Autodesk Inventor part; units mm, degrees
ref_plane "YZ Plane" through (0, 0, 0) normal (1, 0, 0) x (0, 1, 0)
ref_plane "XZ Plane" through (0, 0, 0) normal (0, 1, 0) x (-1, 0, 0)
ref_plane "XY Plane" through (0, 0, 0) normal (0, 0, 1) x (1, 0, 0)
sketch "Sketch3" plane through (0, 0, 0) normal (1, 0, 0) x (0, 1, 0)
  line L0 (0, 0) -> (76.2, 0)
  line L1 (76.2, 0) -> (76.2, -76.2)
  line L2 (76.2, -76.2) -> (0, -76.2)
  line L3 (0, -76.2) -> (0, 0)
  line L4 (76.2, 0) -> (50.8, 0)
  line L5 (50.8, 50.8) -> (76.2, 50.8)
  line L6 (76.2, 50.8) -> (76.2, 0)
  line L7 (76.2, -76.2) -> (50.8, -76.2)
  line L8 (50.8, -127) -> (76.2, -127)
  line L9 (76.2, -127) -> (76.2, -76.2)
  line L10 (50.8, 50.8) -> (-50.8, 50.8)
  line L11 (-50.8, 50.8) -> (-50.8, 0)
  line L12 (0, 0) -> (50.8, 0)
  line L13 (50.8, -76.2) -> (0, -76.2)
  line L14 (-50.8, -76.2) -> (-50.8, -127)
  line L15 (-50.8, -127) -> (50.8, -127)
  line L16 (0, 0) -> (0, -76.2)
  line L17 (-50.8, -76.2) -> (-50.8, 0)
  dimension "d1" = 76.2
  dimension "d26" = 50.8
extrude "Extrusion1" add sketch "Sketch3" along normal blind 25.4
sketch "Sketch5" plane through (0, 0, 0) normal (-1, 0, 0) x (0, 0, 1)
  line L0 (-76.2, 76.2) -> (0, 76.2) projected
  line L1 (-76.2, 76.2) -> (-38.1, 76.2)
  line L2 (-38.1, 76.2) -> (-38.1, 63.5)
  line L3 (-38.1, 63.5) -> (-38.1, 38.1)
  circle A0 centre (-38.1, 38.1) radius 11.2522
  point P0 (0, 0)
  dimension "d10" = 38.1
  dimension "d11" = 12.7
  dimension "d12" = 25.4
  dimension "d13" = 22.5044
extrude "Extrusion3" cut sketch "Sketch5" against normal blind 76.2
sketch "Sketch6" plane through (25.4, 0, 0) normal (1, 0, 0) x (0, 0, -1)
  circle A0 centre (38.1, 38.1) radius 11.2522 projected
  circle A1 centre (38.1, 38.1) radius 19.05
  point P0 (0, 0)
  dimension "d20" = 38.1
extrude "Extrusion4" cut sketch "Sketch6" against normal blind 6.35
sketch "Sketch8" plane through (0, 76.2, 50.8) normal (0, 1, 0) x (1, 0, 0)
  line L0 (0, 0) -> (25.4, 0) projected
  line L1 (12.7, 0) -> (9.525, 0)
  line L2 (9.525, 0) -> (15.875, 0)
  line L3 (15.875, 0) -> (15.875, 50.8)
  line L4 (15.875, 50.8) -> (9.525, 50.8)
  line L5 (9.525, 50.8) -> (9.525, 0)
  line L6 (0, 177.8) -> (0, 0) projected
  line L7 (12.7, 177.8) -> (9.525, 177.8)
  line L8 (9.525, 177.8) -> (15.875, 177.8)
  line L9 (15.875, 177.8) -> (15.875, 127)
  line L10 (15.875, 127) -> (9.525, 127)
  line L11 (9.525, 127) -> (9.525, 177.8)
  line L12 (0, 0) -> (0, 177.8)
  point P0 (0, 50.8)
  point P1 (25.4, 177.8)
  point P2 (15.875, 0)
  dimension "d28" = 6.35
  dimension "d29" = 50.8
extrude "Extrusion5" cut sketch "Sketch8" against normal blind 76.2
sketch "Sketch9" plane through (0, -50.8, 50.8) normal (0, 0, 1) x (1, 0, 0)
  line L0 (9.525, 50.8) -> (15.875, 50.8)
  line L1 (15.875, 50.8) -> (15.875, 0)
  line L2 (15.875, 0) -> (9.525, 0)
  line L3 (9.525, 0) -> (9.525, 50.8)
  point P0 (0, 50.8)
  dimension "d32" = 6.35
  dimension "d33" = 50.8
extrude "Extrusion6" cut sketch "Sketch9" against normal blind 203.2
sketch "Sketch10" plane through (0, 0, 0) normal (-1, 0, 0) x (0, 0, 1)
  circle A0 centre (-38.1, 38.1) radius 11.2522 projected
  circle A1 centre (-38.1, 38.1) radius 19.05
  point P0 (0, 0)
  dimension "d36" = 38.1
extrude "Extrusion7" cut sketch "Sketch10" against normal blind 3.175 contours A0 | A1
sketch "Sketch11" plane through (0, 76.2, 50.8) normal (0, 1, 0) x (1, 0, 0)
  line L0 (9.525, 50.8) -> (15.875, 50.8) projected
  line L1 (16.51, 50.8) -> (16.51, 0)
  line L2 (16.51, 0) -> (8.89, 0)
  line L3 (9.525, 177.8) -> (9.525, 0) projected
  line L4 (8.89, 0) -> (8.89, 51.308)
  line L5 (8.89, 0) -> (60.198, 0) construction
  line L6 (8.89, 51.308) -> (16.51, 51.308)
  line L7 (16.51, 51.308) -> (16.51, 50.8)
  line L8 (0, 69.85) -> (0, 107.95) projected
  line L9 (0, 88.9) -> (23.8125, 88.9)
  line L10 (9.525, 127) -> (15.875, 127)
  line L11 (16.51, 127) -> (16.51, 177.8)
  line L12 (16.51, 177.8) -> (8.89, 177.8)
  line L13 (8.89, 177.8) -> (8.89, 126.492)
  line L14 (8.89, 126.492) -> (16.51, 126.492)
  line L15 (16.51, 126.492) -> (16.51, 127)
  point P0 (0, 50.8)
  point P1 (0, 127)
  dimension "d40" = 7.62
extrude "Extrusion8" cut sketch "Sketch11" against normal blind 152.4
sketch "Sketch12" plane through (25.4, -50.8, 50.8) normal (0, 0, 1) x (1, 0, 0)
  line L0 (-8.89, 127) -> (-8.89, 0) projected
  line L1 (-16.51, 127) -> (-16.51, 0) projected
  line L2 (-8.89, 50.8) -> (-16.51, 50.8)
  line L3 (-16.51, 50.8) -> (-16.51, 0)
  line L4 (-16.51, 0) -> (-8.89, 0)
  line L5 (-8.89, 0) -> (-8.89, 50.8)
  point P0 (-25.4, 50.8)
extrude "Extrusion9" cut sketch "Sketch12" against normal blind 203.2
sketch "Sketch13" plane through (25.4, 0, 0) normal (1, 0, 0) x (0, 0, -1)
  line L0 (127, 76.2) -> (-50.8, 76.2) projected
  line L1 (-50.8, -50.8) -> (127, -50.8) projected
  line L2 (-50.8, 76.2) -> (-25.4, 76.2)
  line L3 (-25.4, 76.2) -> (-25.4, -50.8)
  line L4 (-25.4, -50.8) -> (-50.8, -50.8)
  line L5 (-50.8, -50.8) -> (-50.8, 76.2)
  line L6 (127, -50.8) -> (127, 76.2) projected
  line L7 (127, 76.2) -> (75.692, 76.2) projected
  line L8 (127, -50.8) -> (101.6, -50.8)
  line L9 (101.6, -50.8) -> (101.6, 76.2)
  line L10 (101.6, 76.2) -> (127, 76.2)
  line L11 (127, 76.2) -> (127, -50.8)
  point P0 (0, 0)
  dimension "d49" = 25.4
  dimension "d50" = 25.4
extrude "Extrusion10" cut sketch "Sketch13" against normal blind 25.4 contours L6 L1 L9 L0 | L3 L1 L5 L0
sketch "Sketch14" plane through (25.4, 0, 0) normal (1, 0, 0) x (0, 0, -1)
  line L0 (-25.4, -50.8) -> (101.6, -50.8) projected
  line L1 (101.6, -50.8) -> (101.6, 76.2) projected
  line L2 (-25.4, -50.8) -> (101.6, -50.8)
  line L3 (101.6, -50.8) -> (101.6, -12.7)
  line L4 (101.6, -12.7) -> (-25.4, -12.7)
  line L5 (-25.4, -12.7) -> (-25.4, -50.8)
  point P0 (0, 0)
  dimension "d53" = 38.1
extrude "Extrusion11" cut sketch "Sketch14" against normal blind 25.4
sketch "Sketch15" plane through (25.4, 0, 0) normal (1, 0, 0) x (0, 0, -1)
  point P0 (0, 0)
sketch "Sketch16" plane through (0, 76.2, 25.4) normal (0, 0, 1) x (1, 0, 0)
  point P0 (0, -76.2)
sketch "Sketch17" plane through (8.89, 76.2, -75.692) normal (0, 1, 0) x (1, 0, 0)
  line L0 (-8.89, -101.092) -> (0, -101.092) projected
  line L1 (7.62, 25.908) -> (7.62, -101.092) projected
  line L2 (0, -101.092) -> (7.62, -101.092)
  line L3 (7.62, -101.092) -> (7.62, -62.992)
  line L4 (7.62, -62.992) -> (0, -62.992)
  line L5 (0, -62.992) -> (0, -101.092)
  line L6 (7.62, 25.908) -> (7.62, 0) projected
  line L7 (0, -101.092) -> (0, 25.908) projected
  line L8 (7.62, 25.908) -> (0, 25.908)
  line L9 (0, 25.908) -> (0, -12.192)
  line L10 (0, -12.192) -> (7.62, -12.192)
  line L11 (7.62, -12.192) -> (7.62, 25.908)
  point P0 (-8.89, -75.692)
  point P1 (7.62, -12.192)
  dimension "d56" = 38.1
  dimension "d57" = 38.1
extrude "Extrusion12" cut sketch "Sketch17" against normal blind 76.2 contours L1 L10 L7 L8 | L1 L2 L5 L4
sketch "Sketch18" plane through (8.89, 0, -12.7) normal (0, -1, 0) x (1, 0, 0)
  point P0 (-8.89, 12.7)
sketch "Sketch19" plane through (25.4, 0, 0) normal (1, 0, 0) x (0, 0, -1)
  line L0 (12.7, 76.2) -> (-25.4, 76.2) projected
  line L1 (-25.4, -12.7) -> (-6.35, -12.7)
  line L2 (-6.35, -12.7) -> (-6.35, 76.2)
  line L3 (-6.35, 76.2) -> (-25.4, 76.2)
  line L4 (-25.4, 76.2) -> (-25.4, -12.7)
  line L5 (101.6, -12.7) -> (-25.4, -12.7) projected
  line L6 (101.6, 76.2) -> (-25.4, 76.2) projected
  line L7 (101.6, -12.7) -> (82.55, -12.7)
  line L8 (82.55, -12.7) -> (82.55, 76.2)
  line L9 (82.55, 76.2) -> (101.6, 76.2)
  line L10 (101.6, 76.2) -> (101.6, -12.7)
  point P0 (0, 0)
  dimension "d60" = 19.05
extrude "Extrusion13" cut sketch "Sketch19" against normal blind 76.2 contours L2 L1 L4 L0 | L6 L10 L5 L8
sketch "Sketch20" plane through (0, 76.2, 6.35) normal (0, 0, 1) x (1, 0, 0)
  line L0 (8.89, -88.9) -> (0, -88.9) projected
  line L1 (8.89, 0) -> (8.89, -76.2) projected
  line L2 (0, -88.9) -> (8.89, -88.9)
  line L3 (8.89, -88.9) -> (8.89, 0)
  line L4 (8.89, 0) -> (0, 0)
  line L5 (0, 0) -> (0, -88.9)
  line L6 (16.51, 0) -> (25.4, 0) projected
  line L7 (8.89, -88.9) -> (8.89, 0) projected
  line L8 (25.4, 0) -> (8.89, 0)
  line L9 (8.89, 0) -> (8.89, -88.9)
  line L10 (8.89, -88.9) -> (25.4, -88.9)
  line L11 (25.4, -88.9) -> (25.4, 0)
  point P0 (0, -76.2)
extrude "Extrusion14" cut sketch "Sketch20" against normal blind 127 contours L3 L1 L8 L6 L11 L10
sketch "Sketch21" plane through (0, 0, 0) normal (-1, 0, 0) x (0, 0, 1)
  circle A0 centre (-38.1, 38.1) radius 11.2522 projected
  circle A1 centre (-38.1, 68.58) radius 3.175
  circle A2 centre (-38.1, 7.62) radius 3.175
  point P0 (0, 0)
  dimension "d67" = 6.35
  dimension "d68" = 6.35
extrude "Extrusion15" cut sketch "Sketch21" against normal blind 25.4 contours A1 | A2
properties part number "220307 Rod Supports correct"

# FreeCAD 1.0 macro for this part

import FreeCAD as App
import Part
import Sketcher

V = App.Vector
Q = App.Units.Quantity

doc = App.newDocument("Part")
body = doc.addObject("PartDesign::Body", "Body")

# Sketch on YZ plane
sketch1 = body.newObject("Sketcher::SketchObject", "Sketch")
sketch1.AttachmentSupport = (doc.getObject("YZ_Plane"), [""])
sketch1.MapMode = "FlatFace"
sketch1.addGeometry(Part.LineSegment(V(76.2, -127, 0), V(76.2, 50.8, 0)), False)
sketch1.addGeometry(Part.LineSegment(V(76.2, 50.8, 0), V(-50.8, 50.8, 0)), False)
sketch1.addGeometry(Part.LineSegment(V(-50.8, 50.8, 0), V(-50.8, -127, 0)), False)
sketch1.addGeometry(Part.LineSegment(V(-50.8, -127, 0), V(76.2, -127, 0)), False)
sketch1.addConstraint(Sketcher.Constraint("Coincident", 0, 2, 1, 1))
sketch1.addConstraint(Sketcher.Constraint("Coincident", 1, 2, 2, 1))
sketch1.addConstraint(Sketcher.Constraint("Coincident", 2, 2, 3, 1))
sketch1.addConstraint(Sketcher.Constraint("Coincident", 3, 2, 0, 1))
sketch1.addConstraint(Sketcher.Constraint("Vertical", 0))
sketch1.addConstraint(Sketcher.Constraint("Horizontal", 1))
sketch1.addConstraint(Sketcher.Constraint("Vertical", 2))
sketch1.addConstraint(Sketcher.Constraint("Horizontal", 3))
sketch1.addConstraint(Sketcher.Constraint("DistanceX", -1, 1, 0, 2, Q("3 in")))
sketch1.addConstraint(Sketcher.Constraint("DistanceY", -1, 1, 0, 2, Q("2 in")))
sketch1.addConstraint(Sketcher.Constraint("DistanceX", 1, 2, -1, 1, Q("2 in")))
sketch1.addConstraint(Sketcher.Constraint("DistanceY", 0, 1, 0, 2, Q("7 in")))
pad1 = body.newObject("PartDesign::Pad", "Pad")
pad1.Profile = sketch1
pad1.Length = Q("1 in")

# Sketch on YZ plane
sketch2 = body.newObject("Sketcher::SketchObject", "Sketch001")
sketch2.AttachmentSupport = (doc.getObject("YZ_Plane"), [""])
sketch2.MapMode = "FlatFace"
sketch2.addGeometry(Part.Circle(V(38.1, -38.1, 0), V(0, 0, 1), 11.2522), False)
sketch2.addConstraint(Sketcher.Constraint("Diameter", 0, Q("0.886 in")))
sketch2.addConstraint(Sketcher.Constraint("DistanceX", -1, 1, 0, 3, Q("1.5 in")))
sketch2.addConstraint(Sketcher.Constraint("DistanceY", 0, 3, -1, 1, Q("1.5 in")))
pocket1 = body.newObject("PartDesign::Pocket", "Pocket")
pocket1.Profile = sketch2
pocket1.Length = Q("3 in")
pocket1.Reversed = True

# Sketch on YZ plane
sketch3 = body.newObject("Sketcher::SketchObject", "Sketch002")
sketch3.AttachmentSupport = (doc.getObject("YZ_Plane"), [""])
sketch3.MapMode = "FlatFace"
sketch3.AttachmentOffset = App.Placement(V(0, 0, 1 * 25.4), App.Rotation())
sketch3.addGeometry(Part.Circle(V(38.1, -38.1, 0), V(0, 0, 1), 19.05), False)
sketch3.addGeometry(Part.Circle(V(38.1, -38.1, 0), V(0, 0, 1), 11.2522), False)
sketch3.addConstraint(Sketcher.Constraint("Coincident", 1, 3, 0, 3))
sketch3.addConstraint(Sketcher.Constraint("Diameter", 0, Q("1.5 in")))
sketch3.addConstraint(Sketcher.Constraint("DistanceX", -1, 1, 0, 3, Q("1.5 in")))
sketch3.addConstraint(Sketcher.Constraint("DistanceY", 0, 3, -1, 1, Q("1.5 in")))
sketch3.addConstraint(Sketcher.Constraint("Diameter", 1, Q("0.886 in")))
pocket2 = body.newObject("PartDesign::Pocket", "Pocket001")
pocket2.Profile = sketch3
pocket2.Length = Q("0.25 in")

# Sketch on XZ plane
sketch4 = body.newObject("Sketcher::SketchObject", "Sketch003")
sketch4.AttachmentSupport = (doc.getObject("XZ_Plane"), [""])
sketch4.MapMode = "FlatFace"
sketch4.AttachmentOffset = App.Placement(V(0, 0, -3 * 25.4), App.Rotation())
sketch4.addGeometry(Part.LineSegment(V(9.525, 0, 0), V(9.525, 50.8, 0)), False)
sketch4.addGeometry(Part.LineSegment(V(9.525, 50.8, 0), V(15.875, 50.8, 0)), False)
sketch4.addGeometry(Part.LineSegment(V(15.875, 50.8, 0), V(15.875, 0, 0)), False)
sketch4.addGeometry(Part.LineSegment(V(15.875, 0, 0), V(9.525, 0, 0)), False)
sketch4.addGeometry(Part.LineSegment(V(15.875, -127, 0), V(9.525, -127, 0)), False)
sketch4.addGeometry(Part.LineSegment(V(9.525, -127, 0), V(9.525, -76.2, 0)), False)
sketch4.addGeometry(Part.LineSegment(V(9.525, -76.2, 0), V(15.875, -76.2, 0)), False)
sketch4.addGeometry(Part.LineSegment(V(15.875, -76.2, 0), V(15.875, -127, 0)), False)
sketch4.addConstraint(Sketcher.Constraint("Coincident", 0, 2, 1, 1))
sketch4.addConstraint(Sketcher.Constraint("Coincident", 1, 2, 2, 1))
sketch4.addConstraint(Sketcher.Constraint("Coincident", 2, 2, 3, 1))
sketch4.addConstraint(Sketcher.Constraint("Coincident", 3, 2, 0, 1))
sketch4.addConstraint(Sketcher.Constraint("Coincident", 4, 2, 5, 1))
sketch4.addConstraint(Sketcher.Constraint("Coincident", 5, 2, 6, 1))
sketch4.addConstraint(Sketcher.Constraint("Coincident", 6, 2, 7, 1))
sketch4.addConstraint(Sketcher.Constraint("Coincident", 7, 2, 4, 1))
sketch4.addConstraint(Sketcher.Constraint("Vertical", 0))
sketch4.addConstraint(Sketcher.Constraint("Horizontal", 1))
sketch4.addConstraint(Sketcher.Constraint("Vertical", 2))
sketch4.addConstraint(Sketcher.Constraint("Horizontal", 3))
sketch4.addConstraint(Sketcher.Constraint("Horizontal", 4))
sketch4.addConstraint(Sketcher.Constraint("Vertical", 5))
sketch4.addConstraint(Sketcher.Constraint("Horizontal", 6))
sketch4.addConstraint(Sketcher.Constraint("Vertical", 7))
sketch4.addConstraint(Sketcher.Constraint("PointOnObject", 2, 2, -1))
sketch4.addConstraint(Sketcher.Constraint("Vertical", 3, 2, 4, 2))
sketch4.addConstraint(Sketcher.Constraint("Vertical", 2, 2, 6, 2))
sketch4.addConstraint(Sketcher.Constraint("Equal", 2, 5))
sketch4.addConstraint(Sketcher.Constraint("DistanceY", 0, 1, 0, 2, Q("2 in")))
sketch4.addConstraint(Sketcher.Constraint("DistanceX", 1, 1, 1, 2, Q("0.25 in")))
sketch4.addConstraint(Sketcher.Constraint("DistanceY", 4, 2, -1, 1, Q("5 in")))
sketch4.addConstraint(Sketcher.Constraint("DistanceX", -1, 1, 0, 2, Q("0.375 in")))
pocket3 = body.newObject("PartDesign::Pocket", "Pocket002")
pocket3.Profile = sketch4
pocket3.Length = Q("3 in")
pocket3.Reversed = True

# Sketch on XY plane
sketch5 = body.newObject("Sketcher::SketchObject", "Sketch004")
sketch5.AttachmentSupport = (doc.getObject("XY_Plane"), [""])
sketch5.MapMode = "FlatFace"
sketch5.AttachmentOffset = App.Placement(V(0, 0, 2 * 25.4), App.Rotation())
sketch5.addGeometry(Part.LineSegment(V(15.875, 0, 0), V(9.525, 0, 0)), False)
sketch5.addGeometry(Part.LineSegment(V(9.525, 0, 0), V(9.525, -50.8, 0)), False)
sketch5.addGeometry(Part.LineSegment(V(9.525, -50.8, 0), V(15.875, -50.8, 0)), False)
sketch5.addGeometry(Part.LineSegment(V(15.875, -50.8, 0), V(15.875, 0, 0)), False)
sketch5.addConstraint(Sketcher.Constraint("Coincident", 0, 2, 1, 1))
sketch5.addConstraint(Sketcher.Constraint("Coincident", 1, 2, 2, 1))
sketch5.addConstraint(Sketcher.Constraint("Coincident", 2, 2, 3, 1))
sketch5.addConstraint(Sketcher.Constraint("Coincident", 3, 2, 0, 1))
sketch5.addConstraint(Sketcher.Constraint("Horizontal", 0))
sketch5.addConstraint(Sketcher.Constraint("Vertical", 1))
sketch5.addConstraint(Sketcher.Constraint("Horizontal", 2))
sketch5.addConstraint(Sketcher.Constraint("Vertical", 3))
sketch5.addConstraint(Sketcher.Constraint("PointOnObject", 0, 2, -1))
sketch5.addConstraint(Sketcher.Constraint("DistanceY", 1, 2, 1, 1, Q("2 in")))
sketch5.addConstraint(Sketcher.Constraint("DistanceX", 0, 2, 0, 1, Q("0.25 in")))
sketch5.addConstraint(Sketcher.Constraint("DistanceX", -1, 1, 0, 2, Q("0.375 in")))
pocket4 = body.newObject("PartDesign::Pocket", "Pocket003")
pocket4.Profile = sketch5
pocket4.Length = Q("8 in")

# Sketch on YZ plane
sketch6 = body.newObject("Sketcher::SketchObject", "Sketch005")
sketch6.AttachmentSupport = (doc.getObject("YZ_Plane"), [""])
sketch6.MapMode = "FlatFace"
sketch6.addGeometry(Part.Circle(V(38.1, -38.1, 0), V(0, 0, 1), 19.05), False)
sketch6.addConstraint(Sketcher.Constraint("Diameter", 0, Q("1.5 in")))
sketch6.addConstraint(Sketcher.Constraint("DistanceX", -1, 1, 0, 3, Q("1.5 in")))
sketch6.addConstraint(Sketcher.Constraint("DistanceY", 0, 3, -1, 1, Q("1.5 in")))
pocket5 = body.newObject("PartDesign::Pocket", "Pocket004")
pocket5.Profile = sketch6
pocket5.Length = Q("0.125 in")
pocket5.Reversed = True

# Sketch on XZ plane
sketch7 = body.newObject("Sketcher::SketchObject", "Sketch006")
sketch7.AttachmentSupport = (doc.getObject("XZ_Plane"), [""])
sketch7.MapMode = "FlatFace"
sketch7.AttachmentOffset = App.Placement(V(0, 0, -3 * 25.4), App.Rotation())
sketch7.addGeometry(Part.LineSegment(V(8.89, -75.692, 0), V(16.51, -75.692, 0)), False)
sketch7.addGeometry(Part.LineSegment(V(16.51, -75.692, 0), V(16.51, -127, 0)), False)
sketch7.addGeometry(Part.LineSegment(V(16.51, -127, 0), V(8.89, -127, 0)), False)
sketch7.addGeometry(Part.LineSegment(V(8.89, -127, 0), V(8.89, -75.692, 0)), False)
sketch7.addGeometry(Part.LineSegment(V(16.51, 50.8, 0), V(16.51, -0.508, 0)), False)
sketch7.addGeometry(Part.LineSegment(V(16.51, -0.508, 0), V(8.89, -0.508, 0)), False)
sketch7.addGeometry(Part.LineSegment(V(8.89, -0.508, 0), V(8.89, 50.8, 0)), False)
sketch7.addGeometry(Part.LineSegment(V(8.89, 50.8, 0), V(16.51, 50.8, 0)), False)
sketch7.addConstraint(Sketcher.Constraint("Coincident", 0, 2, 1, 1))
sketch7.addConstraint(Sketcher.Constraint("Coincident", 1, 2, 2, 1))
sketch7.addConstraint(Sketcher.Constraint("Coincident", 2, 2, 3, 1))
sketch7.addConstraint(Sketcher.Constraint("Coincident", 3, 2, 0, 1))
sketch7.addConstraint(Sketcher.Constraint("Coincident", 4, 2, 5, 1))
sketch7.addConstraint(Sketcher.Constraint("Coincident", 5, 2, 6, 1))
sketch7.addConstraint(Sketcher.Constraint("Coincident", 6, 2, 7, 1))
sketch7.addConstraint(Sketcher.Constraint("Coincident", 7, 2, 4, 1))
sketch7.addConstraint(Sketcher.Constraint("Horizontal", 0))
sketch7.addConstraint(Sketcher.Constraint("Vertical", 1))
sketch7.addConstraint(Sketcher.Constraint("Horizontal", 2))
sketch7.addConstraint(Sketcher.Constraint("Vertical", 3))
sketch7.addConstraint(Sketcher.Constraint("Vertical", 4))
sketch7.addConstraint(Sketcher.Constraint("Horizontal", 5))
sketch7.addConstraint(Sketcher.Constraint("Vertical", 6))
sketch7.addConstraint(Sketcher.Constraint("Horizontal", 7))
sketch7.addConstraint(Sketcher.Constraint("Vertical", 1, 2, 4, 2))
sketch7.addConstraint(Sketcher.Constraint("Vertical", 3, 2, 5, 2))
sketch7.addConstraint(Sketcher.Constraint("Equal", 3, 4))
sketch7.addConstraint(Sketcher.Constraint("DistanceX", 0, 1, 0, 2, Q("0.3 in")))
sketch7.addConstraint(Sketcher.Constraint("DistanceY", 1, 2, -1, 1, Q("5 in")))
sketch7.addConstraint(Sketcher.Constraint("DistanceY", -1, 1, 6, 2, Q("2 in")))
sketch7.addConstraint(Sketcher.Constraint("DistanceY", 1, 2, 1, 1, Q("2.02 in")))
sketch7.addConstraint(Sketcher.Constraint("DistanceX", -1, 1, 0, 2, Q("0.65 in")))
pocket6 = body.newObject("PartDesign::Pocket", "Pocket005")
pocket6.Profile = sketch7
pocket6.Length = Q("6 in")
pocket6.Reversed = True

# Sketch on XY plane
sketch8 = body.newObject("Sketcher::SketchObject", "Sketch007")
sketch8.AttachmentSupport = (doc.getObject("XY_Plane"), [""])
sketch8.MapMode = "FlatFace"
sketch8.AttachmentOffset = App.Placement(V(0, 0, 2 * 25.4), App.Rotation())
sketch8.addGeometry(Part.LineSegment(V(16.51, -50.8, 0), V(16.51, 0, 0)), False)
sketch8.addGeometry(Part.LineSegment(V(16.51, 0, 0), V(8.89, 0, 0)), False)
sketch8.addGeometry(Part.LineSegment(V(8.89, 0, 0), V(8.89, -50.8, 0)), False)
sketch8.addGeometry(Part.LineSegment(V(8.89, -50.8, 0), V(16.51, -50.8, 0)), False)
sketch8.addConstraint(Sketcher.Constraint("Coincident", 0, 2, 1, 1))
sketch8.addConstraint(Sketcher.Constraint("Coincident", 1, 2, 2, 1))
sketch8.addConstraint(Sketcher.Constraint("Coincident", 2, 2, 3, 1))
sketch8.addConstraint(Sketcher.Constraint("Coincident", 3, 2, 0, 1))
sketch8.addConstraint(Sketcher.Constraint("Vertical", 0))
sketch8.addConstraint(Sketcher.Constraint("Horizontal", 1))
sketch8.addConstraint(Sketcher.Constraint("Vertical", 2))
sketch8.addConstraint(Sketcher.Constraint("Horizontal", 3))
sketch8.addConstraint(Sketcher.Constraint("PointOnObject", 0, 2, -1))
sketch8.addConstraint(Sketcher.Constraint("DistanceY", 0, 1, 0, 2, Q("2 in")))
sketch8.addConstraint(Sketcher.Constraint("DistanceX", 1, 2, 1, 1, Q("0.3 in")))
sketch8.addConstraint(Sketcher.Constraint("DistanceX", -1, 1, 0, 2, Q("0.65 in")))
pocket7 = body.newObject("PartDesign::Pocket", "Pocket006")
pocket7.Profile = sketch8
pocket7.Length = Q("8 in")

# Sketch on YZ plane
sketch9 = body.newObject("Sketcher::SketchObject", "Sketch008")
sketch9.AttachmentSupport = (doc.getObject("YZ_Plane"), [""])
sketch9.MapMode = "FlatFace"
sketch9.AttachmentOffset = App.Placement(V(0, 0, 1 * 25.4), App.Rotation())
sketch9.addGeometry(Part.LineSegment(V(-50.8, -127, 0), V(76.2, -127, 0)), False)
sketch9.addGeometry(Part.LineSegment(V(76.2, -127, 0), V(76.2, -101.6, 0)), False)
sketch9.addGeometry(Part.LineSegment(V(76.2, -101.6, 0), V(-50.8, -101.6, 0)), False)
sketch9.addGeometry(Part.LineSegment(V(-50.8, -101.6, 0), V(-50.8, -127, 0)), False)
sketch9.addGeometry(Part.LineSegment(V(-50.8, 25.4, 0), V(76.2, 25.4, 0)), False)
sketch9.addGeometry(Part.LineSegment(V(76.2, 25.4, 0), V(76.2, 50.8, 0)), False)
sketch9.addGeometry(Part.LineSegment(V(76.2, 50.8, 0), V(-50.8, 50.8, 0)), False)
sketch9.addGeometry(Part.LineSegment(V(-50.8, 50.8, 0), V(-50.8, 25.4, 0)), False)
sketch9.addConstraint(Sketcher.Constraint("Coincident", 0, 2, 1, 1))
sketch9.addConstraint(Sketcher.Constraint("Coincident", 1, 2, 2, 1))
sketch9.addConstraint(Sketcher.Constraint("Coincident", 2, 2, 3, 1))
sketch9.addConstraint(Sketcher.Constraint("Coincident", 3, 2, 0, 1))
sketch9.addConstraint(Sketcher.Constraint("Coincident", 4, 2, 5, 1))
sketch9.addConstraint(Sketcher.Constraint("Coincident", 5, 2, 6, 1))
sketch9.addConstraint(Sketcher.Constraint("Coincident", 6, 2, 7, 1))
sketch9.addConstraint(Sketcher.Constraint("Coincident", 7, 2, 4, 1))
sketch9.addConstraint(Sketcher.Constraint("Horizontal", 0))
sketch9.addConstraint(Sketcher.Constraint("Vertical", 1))
sketch9.addConstraint(Sketcher.Constraint("Horizontal", 2))
sketch9.addConstraint(Sketcher.Constraint("Vertical", 3))
sketch9.addConstraint(Sketcher.Constraint("Horizontal", 4))
sketch9.addConstraint(Sketcher.Constraint("Vertical", 5))
sketch9.addConstraint(Sketcher.Constraint("Horizontal", 6))
sketch9.addConstraint(Sketcher.Constraint("Vertical", 7))
sketch9.addConstraint(Sketcher.Constraint("Vertical", 1, 2, 4, 2))
sketch9.addConstraint(Sketcher.Constraint("Vertical", 3, 2, 6, 2))
sketch9.addConstraint(Sketcher.Constraint("Equal", 3, 5))
sketch9.addConstraint(Sketcher.Constraint("DistanceY", 1, 1, 1, 2, Q("1 in")))
sketch9.addConstraint(Sketcher.Constraint("DistanceY", -1, 1, 4, 2, Q("1 in")))
sketch9.addConstraint(Sketcher.Constraint("DistanceX", 0, 1, 0, 2, Q("5 in")))
sketch9.addConstraint(Sketcher.Constraint("DistanceX", -1, 1, 0, 2, Q("3 in")))
sketch9.addConstraint(Sketcher.Constraint("DistanceY", 0, 2, -1, 1, Q("5 in")))
pocket8 = body.newObject("PartDesign::Pocket", "Pocket007")
pocket8.Profile = sketch9
pocket8.Length = Q("1 in")

# Sketch on YZ plane
sketch10 = body.newObject("Sketcher::SketchObject", "Sketch009")
sketch10.AttachmentSupport = (doc.getObject("YZ_Plane"), [""])
sketch10.MapMode = "FlatFace"
sketch10.AttachmentOffset = App.Placement(V(0, 0, 1 * 25.4), App.Rotation())
sketch10.addGeometry(Part.LineSegment(V(-12.7, 25.4, 0), V(-50.8, 25.4, 0)), False)
sketch10.addGeometry(Part.LineSegment(V(-50.8, 25.4, 0), V(-50.8, -101.6, 0)), False)
sketch10.addGeometry(Part.LineSegment(V(-50.8, -101.6, 0), V(-12.7, -101.6, 0)), False)
sketch10.addGeometry(Part.LineSegment(V(-12.7, -101.6, 0), V(-12.7, 25.4, 0)), False)
sketch10.addConstraint(Sketcher.Constraint("Coincident", 0, 2, 1, 1))
sketch10.addConstraint(Sketcher.Constraint("Coincident", 1, 2, 2, 1))
sketch10.addConstraint(Sketcher.Constraint("Coincident", 2, 2, 3, 1))
sketch10.addConstraint(Sketcher.Constraint("Coincident", 3, 2, 0, 1))
sketch10.addConstraint(Sketcher.Constraint("Horizontal", 0))
sketch10.addConstraint(Sketcher.Constraint("Vertical", 1))
sketch10.addConstraint(Sketcher.Constraint("Horizontal", 2))
sketch10.addConstraint(Sketcher.Constraint("Vertical", 3))
sketch10.addConstraint(Sketcher.Constraint("DistanceX", 0, 2, 0, 1, Q("1.5 in")))
sketch10.addConstraint(Sketcher.Constraint("DistanceY", 1, 2, 1, 1, Q("5 in")))
sketch10.addConstraint(Sketcher.Constraint("DistanceX", 0, 2, -1, 1, Q("2 in")))
sketch10.addConstraint(Sketcher.Constraint("DistanceY", -1, 1, 0, 2, Q("1 in")))
pocket9 = body.newObject("PartDesign::Pocket", "Pocket008")
pocket9.Profile = sketch10
pocket9.Length = Q("1 in")

# Sketch on XZ plane
sketch11 = body.newObject("Sketcher::SketchObject", "Sketch010")
sketch11.AttachmentSupport = (doc.getObject("XZ_Plane"), [""])
sketch11.MapMode = "FlatFace"
sketch11.AttachmentOffset = App.Placement(V(0, 0, -3 * 25.4), App.Rotation())
sketch11.addGeometry(Part.LineSegment(V(16.51, -63.5, 0), V(16.51, -101.6, 0)), False)
sketch11.addGeometry(Part.LineSegment(V(16.51, -101.6, 0), V(8.89, -101.6, 0)), False)
sketch11.addGeometry(Part.LineSegment(V(8.89, -101.6, 0), V(8.89, -63.5, 0)), False)
sketch11.addGeometry(Part.LineSegment(V(8.89, -63.5, 0), V(16.51, -63.5, 0)), False)
sketch11.addGeometry(Part.LineSegment(V(16.51, 25.4, 0), V(16.51, -12.7, 0)), False)
sketch11.addGeometry(Part.LineSegment(V(16.51, -12.7, 0), V(8.89, -12.7, 0)), False)
sketch11.addGeometry(Part.LineSegment(V(8.89, -12.7, 0), V(8.89, 25.4, 0)), False)
sketch11.addGeometry(Part.LineSegment(V(8.89, 25.4, 0), V(16.51, 25.4, 0)), False)
sketch11.addConstraint(Sketcher.Constraint("Coincident", 0, 2, 1, 1))
sketch11.addConstraint(Sketcher.Constraint("Coincident", 1, 2, 2, 1))
sketch11.addConstraint(Sketcher.Constraint("Coincident", 2, 2, 3, 1))
sketch11.addConstraint(Sketcher.Constraint("Coincident", 3, 2, 0, 1))
sketch11.addConstraint(Sketcher.Constraint("Coincident", 4, 2, 5, 1))
sketch11.addConstraint(Sketcher.Constraint("Coincident", 5, 2, 6, 1))
sketch11.addConstraint(Sketcher.Constraint("Coincident", 6, 2, 7, 1))
sketch11.addConstraint(Sketcher.Constraint("Coincident", 7, 2, 4, 1))
sketch11.addConstraint(Sketcher.Constraint("Vertical", 0))
sketch11.addConstraint(Sketcher.Constraint("Horizontal", 1))
sketch11.addConstraint(Sketcher.Constraint("Vertical", 2))
sketch11.addConstraint(Sketcher.Constraint("Horizontal", 3))
sketch11.addConstraint(Sketcher.Constraint("Vertical", 4))
sketch11.addConstraint(Sketcher.Constraint("Horizontal", 5))
sketch11.addConstraint(Sketcher.Constraint("Vertical", 6))
sketch11.addConstraint(Sketcher.Constraint("Horizontal", 7))
sketch11.addConstraint(Sketcher.Constraint("Vertical", 3, 2, 4, 2))
sketch11.addConstraint(Sketcher.Constraint("Vertical", 2, 2, 5, 2))
sketch11.addConstraint(Sketcher.Constraint("Equal", 2, 4))
sketch11.addConstraint(Sketcher.Constraint("DistanceY", 0, 2, 0, 1, Q("1.5 in")))
sketch11.addConstraint(Sketcher.Constraint("DistanceX", 1, 2, 1, 1, Q("0.3 in")))
sketch11.addConstraint(Sketcher.Constraint("DistanceY", 0, 2, -1, 1, Q("4 in")))
sketch11.addConstraint(Sketcher.Constraint("DistanceY", -1, 1, 6, 2, Q("1 in")))
sketch11.addConstraint(Sketcher.Constraint("DistanceX", -1, 1, 0, 2, Q("0.65 in")))
pocket10 = body.newObject("PartDesign::Pocket", "Pocket009")
pocket10.Profile = sketch11
pocket10.Length = Q("3 in")
pocket10.Reversed = True

# Sketch on YZ plane
sketch12 = body.newObject("Sketcher::SketchObject", "Sketch011")
sketch12.AttachmentSupport = (doc.getObject("YZ_Plane"), [""])
sketch12.MapMode = "FlatFace"
sketch12.AttachmentOffset = App.Placement(V(0, 0, 1 * 25.4), App.Rotation())
sketch12.addGeometry(Part.LineSegment(V(-12.7, 6.35, 0), V(76.2, 6.35, 0)), False)
sketch12.addGeometry(Part.LineSegment(V(76.2, 6.35, 0), V(76.2, 25.4, 0)), False)
sketch12.addGeometry(Part.LineSegment(V(76.2, 25.4, 0), V(-12.7, 25.4, 0)), False)
sketch12.addGeometry(Part.LineSegment(V(-12.7, 25.4, 0), V(-12.7, 6.35, 0)), False)
sketch12.addGeometry(Part.LineSegment(V(76.2, -101.6, 0), V(76.2, -82.55, 0)), False)
sketch12.addGeometry(Part.LineSegment(V(76.2, -82.55, 0), V(-12.7, -82.55, 0)), False)
sketch12.addGeometry(Part.LineSegment(V(-12.7, -82.55, 0), V(-12.7, -101.6, 0)), False)
sketch12.addGeometry(Part.LineSegment(V(-12.7, -101.6, 0), V(76.2, -101.6, 0)), False)
sketch12.addConstraint(Sketcher.Constraint("Coincident", 0, 2, 1, 1))
sketch12.addConstraint(Sketcher.Constraint("Coincident", 1, 2, 2, 1))
sketch12.addConstraint(Sketcher.Constraint("Coincident", 2, 2, 3, 1))
sketch12.addConstraint(Sketcher.Constraint("Coincident", 3, 2, 0, 1))
sketch12.addConstraint(Sketcher.Constraint("Coincident", 4, 2, 5, 1))
sketch12.addConstraint(Sketcher.Constraint("Coincident", 5, 2, 6, 1))
sketch12.addConstraint(Sketcher.Constraint("Coincident", 6, 2, 7, 1))
sketch12.addConstraint(Sketcher.Constraint("Coincident", 7, 2, 4, 1))
sketch12.addConstraint(Sketcher.Constraint("Horizontal", 0))
sketch12.addConstraint(Sketcher.Constraint("Vertical", 1))
sketch12.addConstraint(Sketcher.Constraint("Horizontal", 2))
sketch12.addConstraint(Sketcher.Constraint("Vertical", 3))
sketch12.addConstraint(Sketcher.Constraint("Vertical", 4))
sketch12.addConstraint(Sketcher.Constraint("Horizontal", 5))
sketch12.addConstraint(Sketcher.Constraint("Vertical", 6))
sketch12.addConstraint(Sketcher.Constraint("Horizontal", 7))
sketch12.addConstraint(Sketcher.Constraint("Vertical", 1, 2, 4, 2))
sketch12.addConstraint(Sketcher.Constraint("Vertical", 3, 2, 5, 2))
sketch12.addConstraint(Sketcher.Constraint("Equal", 3, 4))
sketch12.addConstraint(Sketcher.Constraint("DistanceY", 1, 1, 1, 2, Q("0.75 in")))
sketch12.addConstraint(Sketcher.Constraint("DistanceX", 0, 1, 0, 2, Q("3.5 in")))
sketch12.addConstraint(Sketcher.Constraint("DistanceX", -1, 1, 0, 2, Q("3 in")))
sketch12.addConstraint(Sketcher.Constraint("DistanceY", -1, 1, 1, 2, Q("1 in")))
sketch12.addConstraint(Sketcher.Constraint("DistanceY", 6, 2, -1, 1, Q("4 in")))
pocket11 = body.newObject("PartDesign::Pocket", "Pocket010")
pocket11.Profile = sketch12
pocket11.Length = Q("3 in")

# Sketch on XY plane
sketch13 = body.newObject("Sketcher::SketchObject", "Sketch012")
sketch13.AttachmentSupport = (doc.getObject("XY_Plane"), [""])
sketch13.MapMode = "FlatFace"
sketch13.AttachmentOffset = App.Placement(V(0, 0, 0.25 * 25.4), App.Rotation())
sketch13.addGeometry(Part.LineSegment(V(8.89, 76.2, 0), V(8.89, -12.7, 0)), False)
sketch13.addGeometry(Part.LineSegment(V(8.89, -12.7, 0), V(25.4, -12.7, 0)), False)
sketch13.addGeometry(Part.LineSegment(V(25.4, -12.7, 0), V(25.4, 76.2, 0)), False)
sketch13.addGeometry(Part.LineSegment(V(25.4, 76.2, 0), V(8.89, 76.2, 0)), False)
sketch13.addConstraint(Sketcher.Constraint("Coincident", 0, 2, 1, 1))
sketch13.addConstraint(Sketcher.Constraint("Coincident", 1, 2, 2, 1))
sketch13.addConstraint(Sketcher.Constraint("Coincident", 2, 2, 3, 1))
sketch13.addConstraint(Sketcher.Constraint("Coincident", 3, 2, 0, 1))
sketch13.addConstraint(Sketcher.Constraint("Vertical", 0))
sketch13.addConstraint(Sketcher.Constraint("Horizontal", 1))
sketch13.addConstraint(Sketcher.Constraint("Vertical", 2))
sketch13.addConstraint(Sketcher.Constraint("Horizontal", 3))
sketch13.addConstraint(Sketcher.Constraint("DistanceY", 0, 2, 0, 1, Q("3.5 in")))
sketch13.addConstraint(Sketcher.Constraint("DistanceX", -1, 1, 1, 2, Q("1 in")))
sketch13.addConstraint(Sketcher.Constraint("DistanceY", -1, 1, 2, 2, Q("3 in")))
sketch13.addConstraint(Sketcher.Constraint("DistanceX", 1, 1, 1, 2, Q("0.65 in")))
pocket12 = body.newObject("PartDesign::Pocket", "Pocket011")
pocket12.Profile = sketch13
pocket12.Length = Q("5 in")

# Sketch on YZ plane
sketch14 = body.newObject("Sketcher::SketchObject", "Sketch013")
sketch14.AttachmentSupport = (doc.getObject("YZ_Plane"), [""])
sketch14.MapMode = "FlatFace"
sketch14.addGeometry(Part.Circle(V(68.58, -38.1, 0), V(0, 0, 1), 3.175), False)
sketch14.addGeometry(Part.Circle(V(7.62, -38.1, 0), V(0, 0, 1), 3.175), False)
sketch14.addConstraint(Sketcher.Constraint("Equal", 0, 1))
sketch14.addConstraint(Sketcher.Constraint("Horizontal", 0, 3, 1, 3))
sketch14.addConstraint(Sketcher.Constraint("Diameter", 0, Q("0.25 in")))
sketch14.addConstraint(Sketcher.Constraint("DistanceX", -1, 1, 0, 3, Q("2.7 in")))
sketch14.addConstraint(Sketcher.Constraint("DistanceY", 0, 3, -1, 1, Q("1.5 in")))
sketch14.addConstraint(Sketcher.Constraint("DistanceX", -1, 1, 1, 3, Q("0.3 in")))
pocket13 = body.newObject("PartDesign::Pocket", "Pocket012")
pocket13.Profile = sketch14
pocket13.Length = Q("1 in")
pocket13.Reversed = True

doc.recompute()
